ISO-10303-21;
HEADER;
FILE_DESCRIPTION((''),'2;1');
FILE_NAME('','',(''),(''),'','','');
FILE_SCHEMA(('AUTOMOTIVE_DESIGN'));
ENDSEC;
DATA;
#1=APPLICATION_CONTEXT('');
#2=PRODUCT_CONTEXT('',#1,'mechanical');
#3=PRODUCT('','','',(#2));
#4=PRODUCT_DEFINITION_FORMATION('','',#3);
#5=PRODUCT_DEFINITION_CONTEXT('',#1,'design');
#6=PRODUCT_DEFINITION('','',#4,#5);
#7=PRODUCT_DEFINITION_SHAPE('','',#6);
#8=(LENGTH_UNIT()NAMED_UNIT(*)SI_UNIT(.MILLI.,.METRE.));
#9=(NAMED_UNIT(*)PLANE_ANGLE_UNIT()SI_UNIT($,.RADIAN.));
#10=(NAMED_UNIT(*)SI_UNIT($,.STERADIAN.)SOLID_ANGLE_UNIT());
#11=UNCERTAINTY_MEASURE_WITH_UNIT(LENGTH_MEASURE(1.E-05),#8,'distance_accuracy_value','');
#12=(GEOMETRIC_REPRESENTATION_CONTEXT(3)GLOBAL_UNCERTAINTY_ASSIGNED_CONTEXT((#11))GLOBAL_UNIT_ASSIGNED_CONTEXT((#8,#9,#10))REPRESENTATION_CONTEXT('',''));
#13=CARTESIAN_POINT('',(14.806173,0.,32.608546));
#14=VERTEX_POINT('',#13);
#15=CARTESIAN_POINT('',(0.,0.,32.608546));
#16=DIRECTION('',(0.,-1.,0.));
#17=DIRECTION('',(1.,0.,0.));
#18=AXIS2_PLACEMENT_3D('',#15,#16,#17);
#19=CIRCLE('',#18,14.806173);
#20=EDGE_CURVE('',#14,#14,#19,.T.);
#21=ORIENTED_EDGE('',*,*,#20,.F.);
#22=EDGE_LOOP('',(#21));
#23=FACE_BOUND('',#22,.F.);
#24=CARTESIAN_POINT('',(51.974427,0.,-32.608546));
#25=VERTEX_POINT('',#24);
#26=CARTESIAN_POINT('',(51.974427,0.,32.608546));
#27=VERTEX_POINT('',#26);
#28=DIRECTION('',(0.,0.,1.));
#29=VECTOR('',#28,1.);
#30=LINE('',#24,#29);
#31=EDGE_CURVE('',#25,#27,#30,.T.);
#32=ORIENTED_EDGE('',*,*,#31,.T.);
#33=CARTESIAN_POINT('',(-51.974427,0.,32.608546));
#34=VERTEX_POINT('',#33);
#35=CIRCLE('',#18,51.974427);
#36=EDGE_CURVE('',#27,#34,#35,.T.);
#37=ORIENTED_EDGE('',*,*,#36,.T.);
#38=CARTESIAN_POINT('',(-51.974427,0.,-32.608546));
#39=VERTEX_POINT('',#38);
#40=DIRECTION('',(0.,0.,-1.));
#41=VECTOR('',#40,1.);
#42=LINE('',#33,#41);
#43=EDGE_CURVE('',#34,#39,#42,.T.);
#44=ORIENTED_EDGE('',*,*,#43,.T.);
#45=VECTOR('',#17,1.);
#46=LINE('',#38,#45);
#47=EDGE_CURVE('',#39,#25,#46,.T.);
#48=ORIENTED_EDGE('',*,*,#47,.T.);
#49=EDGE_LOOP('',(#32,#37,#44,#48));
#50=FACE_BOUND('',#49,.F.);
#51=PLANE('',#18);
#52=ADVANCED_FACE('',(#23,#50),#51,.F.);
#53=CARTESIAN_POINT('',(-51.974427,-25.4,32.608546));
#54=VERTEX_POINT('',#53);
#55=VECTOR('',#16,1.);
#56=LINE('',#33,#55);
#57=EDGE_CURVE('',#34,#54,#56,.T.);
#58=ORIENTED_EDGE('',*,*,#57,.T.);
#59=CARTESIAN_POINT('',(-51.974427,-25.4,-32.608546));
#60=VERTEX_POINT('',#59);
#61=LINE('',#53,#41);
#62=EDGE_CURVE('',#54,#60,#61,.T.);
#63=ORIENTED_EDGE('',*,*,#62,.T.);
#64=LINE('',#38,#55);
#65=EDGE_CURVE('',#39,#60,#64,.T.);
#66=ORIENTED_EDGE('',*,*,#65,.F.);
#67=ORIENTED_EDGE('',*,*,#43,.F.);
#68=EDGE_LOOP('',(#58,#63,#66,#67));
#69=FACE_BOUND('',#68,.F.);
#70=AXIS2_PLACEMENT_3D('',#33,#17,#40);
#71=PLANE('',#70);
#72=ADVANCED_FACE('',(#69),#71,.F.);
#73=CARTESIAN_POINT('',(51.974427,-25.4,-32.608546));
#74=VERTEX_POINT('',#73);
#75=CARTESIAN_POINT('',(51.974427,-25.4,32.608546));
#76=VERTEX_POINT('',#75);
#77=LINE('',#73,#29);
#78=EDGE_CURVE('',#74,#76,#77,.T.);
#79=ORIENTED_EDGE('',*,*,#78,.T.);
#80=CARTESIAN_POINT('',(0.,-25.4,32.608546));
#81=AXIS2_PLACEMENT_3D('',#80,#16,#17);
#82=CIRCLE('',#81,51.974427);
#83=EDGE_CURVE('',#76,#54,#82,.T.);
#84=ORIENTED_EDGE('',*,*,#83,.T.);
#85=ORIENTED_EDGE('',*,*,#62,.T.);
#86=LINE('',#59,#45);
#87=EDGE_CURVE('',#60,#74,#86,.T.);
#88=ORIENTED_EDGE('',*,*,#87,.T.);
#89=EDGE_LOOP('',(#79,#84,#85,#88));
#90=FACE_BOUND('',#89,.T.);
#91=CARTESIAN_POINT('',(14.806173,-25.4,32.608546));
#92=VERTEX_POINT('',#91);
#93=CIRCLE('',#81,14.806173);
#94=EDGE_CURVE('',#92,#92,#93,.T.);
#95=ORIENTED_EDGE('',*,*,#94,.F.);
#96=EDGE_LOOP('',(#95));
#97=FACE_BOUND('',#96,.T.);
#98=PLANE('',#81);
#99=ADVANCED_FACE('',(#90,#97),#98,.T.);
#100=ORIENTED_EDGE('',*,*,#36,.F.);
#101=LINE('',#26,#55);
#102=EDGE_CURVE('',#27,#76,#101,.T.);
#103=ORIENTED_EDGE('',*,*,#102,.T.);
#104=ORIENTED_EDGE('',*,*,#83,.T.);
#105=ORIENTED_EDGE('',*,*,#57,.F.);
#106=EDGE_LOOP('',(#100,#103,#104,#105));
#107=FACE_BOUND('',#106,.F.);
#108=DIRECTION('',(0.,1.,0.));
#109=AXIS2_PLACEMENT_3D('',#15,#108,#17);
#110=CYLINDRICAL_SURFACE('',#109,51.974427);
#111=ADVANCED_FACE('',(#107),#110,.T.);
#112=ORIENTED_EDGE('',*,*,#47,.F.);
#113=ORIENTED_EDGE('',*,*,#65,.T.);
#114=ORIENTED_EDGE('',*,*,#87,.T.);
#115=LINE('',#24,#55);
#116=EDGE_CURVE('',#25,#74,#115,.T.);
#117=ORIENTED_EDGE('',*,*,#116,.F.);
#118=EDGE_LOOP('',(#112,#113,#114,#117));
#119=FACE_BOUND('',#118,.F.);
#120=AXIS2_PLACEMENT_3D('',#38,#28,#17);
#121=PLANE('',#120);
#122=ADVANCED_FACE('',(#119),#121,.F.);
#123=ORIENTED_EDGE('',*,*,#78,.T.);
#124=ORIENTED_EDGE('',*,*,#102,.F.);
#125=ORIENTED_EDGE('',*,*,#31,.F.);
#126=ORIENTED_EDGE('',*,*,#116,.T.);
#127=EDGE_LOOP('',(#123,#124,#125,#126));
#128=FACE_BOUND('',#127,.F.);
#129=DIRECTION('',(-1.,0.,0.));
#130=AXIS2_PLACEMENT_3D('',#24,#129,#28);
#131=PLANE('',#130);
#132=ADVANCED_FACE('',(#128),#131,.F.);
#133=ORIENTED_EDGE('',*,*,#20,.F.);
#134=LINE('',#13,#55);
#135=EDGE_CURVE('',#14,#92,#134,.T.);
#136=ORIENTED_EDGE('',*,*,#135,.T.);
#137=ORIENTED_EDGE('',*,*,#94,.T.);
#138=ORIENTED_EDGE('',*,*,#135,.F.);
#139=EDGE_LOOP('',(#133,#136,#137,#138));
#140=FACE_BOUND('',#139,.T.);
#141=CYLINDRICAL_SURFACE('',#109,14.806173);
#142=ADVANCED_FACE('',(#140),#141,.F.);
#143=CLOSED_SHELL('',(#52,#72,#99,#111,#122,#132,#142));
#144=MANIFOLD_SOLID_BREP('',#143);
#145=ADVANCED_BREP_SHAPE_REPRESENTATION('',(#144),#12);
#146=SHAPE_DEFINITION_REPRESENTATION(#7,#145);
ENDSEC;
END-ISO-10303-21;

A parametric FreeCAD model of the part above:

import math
import FreeCAD as App
import Part
import Sketcher

V = App.Vector
Q = App.Units.Quantity

doc = App.newDocument("Part")
body = doc.addObject("PartDesign::Body", "Body")

sketch1 = doc.addObject("Sketcher::SketchObject", "Sketch")
body.addObject(sketch1)
sketch1.AttachmentSupport = (doc.XZ_Plane, [""])
sketch1.MapMode = "FlatFace"
sketch1.addGeometry([
    Part.LineSegment(V(-52, 33, 0), V(-52, -33, 0)),
    Part.LineSegment(V(-52, -33, 0), V(52, -33, 0)),
    Part.LineSegment(V(52, -33, 0), V(52, 33, 0)),
    Part.ArcOfCircle(Part.Circle(V(0, 33, 0), V(0, 0, 1), 52), math.radians(0), math.radians(180)),
    Part.Circle(V(0, 33, 0), V(0, 0, 1), 15),
], False)
sketch1.addConstraint([
    Sketcher.Constraint("Coincident", 0, 2, 1, 1),
    Sketcher.Constraint("Coincident", 1, 2, 2, 1),
    Sketcher.Constraint("Tangent", 2, 2, 3, 1),
    Sketcher.Constraint("Tangent", 3, 2, 0, 1),
    Sketcher.Constraint("Vertical", 0),
    Sketcher.Constraint("Horizontal", 1),
    Sketcher.Constraint("Vertical", 2),
    Sketcher.Constraint("Coincident", 4, 3, 3, 3),
    Sketcher.Constraint("Symmetric", 0, 2, 2, 2, -1, 1),
    Sketcher.Constraint("Diameter", 4, 29.612346),
    Sketcher.Constraint("Radius", 3, 51.974427),
    Sketcher.Constraint("DistanceY", 0, 2, 0, 1, 65.217092),
])
pad1 = doc.addObject("PartDesign::Pad", "Pad")
body.addObject(pad1)
pad1.Profile = sketch1
pad1.Length = Q("1 in")

doc.recompute()
